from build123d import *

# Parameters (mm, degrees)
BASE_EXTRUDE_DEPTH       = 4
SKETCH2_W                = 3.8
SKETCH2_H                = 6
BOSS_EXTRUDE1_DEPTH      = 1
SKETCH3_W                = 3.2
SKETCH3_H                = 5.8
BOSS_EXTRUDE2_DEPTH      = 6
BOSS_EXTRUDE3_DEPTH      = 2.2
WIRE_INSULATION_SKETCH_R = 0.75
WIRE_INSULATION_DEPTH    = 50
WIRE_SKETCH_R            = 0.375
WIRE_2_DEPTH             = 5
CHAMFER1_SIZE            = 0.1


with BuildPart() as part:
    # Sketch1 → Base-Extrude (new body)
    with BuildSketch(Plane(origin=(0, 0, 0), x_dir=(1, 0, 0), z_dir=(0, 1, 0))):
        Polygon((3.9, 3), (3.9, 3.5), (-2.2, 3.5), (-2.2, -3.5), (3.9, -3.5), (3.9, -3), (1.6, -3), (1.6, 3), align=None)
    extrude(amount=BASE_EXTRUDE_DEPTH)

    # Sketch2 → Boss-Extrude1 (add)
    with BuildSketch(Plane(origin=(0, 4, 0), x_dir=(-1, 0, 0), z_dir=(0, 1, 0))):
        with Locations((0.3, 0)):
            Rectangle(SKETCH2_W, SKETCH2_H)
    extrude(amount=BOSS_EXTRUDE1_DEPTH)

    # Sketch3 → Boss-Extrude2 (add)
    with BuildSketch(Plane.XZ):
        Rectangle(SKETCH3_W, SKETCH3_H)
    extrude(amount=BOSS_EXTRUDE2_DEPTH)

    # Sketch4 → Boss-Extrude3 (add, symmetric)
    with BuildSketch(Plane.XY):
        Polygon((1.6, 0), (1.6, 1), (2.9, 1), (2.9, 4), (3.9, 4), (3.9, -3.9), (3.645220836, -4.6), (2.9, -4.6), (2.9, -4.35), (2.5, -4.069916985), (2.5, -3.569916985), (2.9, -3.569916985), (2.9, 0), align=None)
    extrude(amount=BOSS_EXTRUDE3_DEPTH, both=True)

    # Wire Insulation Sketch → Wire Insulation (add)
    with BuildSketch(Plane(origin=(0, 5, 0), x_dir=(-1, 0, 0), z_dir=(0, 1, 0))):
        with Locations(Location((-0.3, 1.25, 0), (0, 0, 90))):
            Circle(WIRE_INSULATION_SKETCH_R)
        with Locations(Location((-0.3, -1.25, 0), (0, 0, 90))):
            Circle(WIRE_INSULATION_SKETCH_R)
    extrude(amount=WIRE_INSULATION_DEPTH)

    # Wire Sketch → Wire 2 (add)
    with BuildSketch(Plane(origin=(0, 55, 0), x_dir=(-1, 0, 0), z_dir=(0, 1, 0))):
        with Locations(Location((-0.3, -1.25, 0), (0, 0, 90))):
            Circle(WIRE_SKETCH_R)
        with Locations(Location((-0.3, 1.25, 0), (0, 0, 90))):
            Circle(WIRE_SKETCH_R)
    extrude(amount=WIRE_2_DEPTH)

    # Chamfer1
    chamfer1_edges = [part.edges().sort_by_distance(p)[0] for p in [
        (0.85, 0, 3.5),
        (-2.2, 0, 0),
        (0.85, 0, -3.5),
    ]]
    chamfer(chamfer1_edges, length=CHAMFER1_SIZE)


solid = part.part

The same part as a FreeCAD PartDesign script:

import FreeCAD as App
import Part
import Sketcher

V = App.Vector
Q = App.Units.Quantity


def edges_at(feature, points):
    """Names of the edges that pass closest to the given points."""
    edges = feature.Shape.Edges
    near = lambda p: min(range(len(edges)), key=lambda i: edges[i].distToShape(Part.Vertex(*p))[0])
    return sorted({f"Edge{near(p) + 1}" for p in points})

doc = App.newDocument("Part")
body = doc.addObject("PartDesign::Body", "Body")

sketch1 = body.newObject("Sketcher::SketchObject", "Sketch")
sketch1.AttachmentSupport = (doc.getObject("XZ_Plane"), [""])
sketch1.MapMode = "FlatFace"
sketch1.addGeometry(Part.LineSegment(V(3.9, -3, 0), V(3.9, -3.5, 0)), False)
sketch1.addGeometry(Part.LineSegment(V(3.9, -3.5, 0), V(-2.2, -3.5, 0)), False)
sketch1.addGeometry(Part.LineSegment(V(-2.2, -3.5, 0), V(-2.2, 3.5, 0)), False)
sketch1.addGeometry(Part.LineSegment(V(-2.2, 3.5, 0), V(3.9, 3.5, 0)), False)
sketch1.addGeometry(Part.LineSegment(V(3.9, 3.5, 0), V(3.9, 3, 0)), False)
sketch1.addGeometry(Part.LineSegment(V(3.9, 3, 0), V(1.6, 3, 0)), False)
sketch1.addGeometry(Part.LineSegment(V(1.6, 3, 0), V(1.6, -3, 0)), False)
sketch1.addGeometry(Part.LineSegment(V(1.6, -3, 0), V(3.9, -3, 0)), False)
sketch1.addConstraint(Sketcher.Constraint("Coincident", 0, 2, 1, 1))
sketch1.addConstraint(Sketcher.Constraint("Coincident", 1, 2, 2, 1))
sketch1.addConstraint(Sketcher.Constraint("Coincident", 2, 2, 3, 1))
sketch1.addConstraint(Sketcher.Constraint("Coincident", 3, 2, 4, 1))
sketch1.addConstraint(Sketcher.Constraint("Coincident", 4, 2, 5, 1))
sketch1.addConstraint(Sketcher.Constraint("Coincident", 5, 2, 6, 1))
sketch1.addConstraint(Sketcher.Constraint("Coincident", 6, 2, 7, 1))
sketch1.addConstraint(Sketcher.Constraint("Coincident", 7, 2, 0, 1))
sketch1.addConstraint(Sketcher.Constraint("Vertical", 0))
sketch1.addConstraint(Sketcher.Constraint("Horizontal", 1))
sketch1.addConstraint(Sketcher.Constraint("Vertical", 2))
sketch1.addConstraint(Sketcher.Constraint("Horizontal", 3))
sketch1.addConstraint(Sketcher.Constraint("Vertical", 4))
sketch1.addConstraint(Sketcher.Constraint("Horizontal", 5))
sketch1.addConstraint(Sketcher.Constraint("Vertical", 6))
sketch1.addConstraint(Sketcher.Constraint("Horizontal", 7))
sketch1.addConstraint(Sketcher.Constraint("Symmetric", 0, 2, 3, 2, -1))
sketch1.addConstraint(Sketcher.Constraint("Equal", 0, 4))
sketch1.addConstraint(Sketcher.Constraint("DistanceY", 2, 1, 2, 2, Q("7 mm")))
sketch1.addConstraint(Sketcher.Constraint("DistanceY", 6, 2, 6, 1, Q("6 mm")))
sketch1.addConstraint(Sketcher.Constraint("DistanceX", 1, 2, 1, 1, Q("6.1 mm")))
sketch1.addConstraint(Sketcher.Constraint("DistanceX", 5, 2, 5, 1, Q("2.3 mm")))
sketch1.addConstraint(Sketcher.Constraint("DistanceX", -1, 1, 0, 2, Q("3.9 mm")))
pad1 = body.newObject("PartDesign::Pad", "Pad")
pad1.Profile = sketch1
pad1.Length = 4
pad1.Reversed = True

sketch2 = body.newObject("Sketcher::SketchObject", "Sketch001")
sketch2.AttachmentSupport = (doc.getObject("XZ_Plane"), [""])
sketch2.MapMode = "FlatFace"
sketch2.AttachmentOffset = App.Placement(V(0, 0, -4), App.Rotation())
sketch2.addGeometry(Part.LineSegment(V(1.6, 3, 0), V(1.6, -3, 0)), False)
sketch2.addGeometry(Part.LineSegment(V(1.6, -3, 0), V(-2.2, -3, 0)), False)
sketch2.addGeometry(Part.LineSegment(V(-2.2, -3, 0), V(-2.2, 3, 0)), False)
sketch2.addGeometry(Part.LineSegment(V(-2.2, 3, 0), V(1.6, 3, 0)), False)
sketch2.addConstraint(Sketcher.Constraint("Coincident", 0, 2, 1, 1))
sketch2.addConstraint(Sketcher.Constraint("Coincident", 1, 2, 2, 1))
sketch2.addConstraint(Sketcher.Constraint("Coincident", 2, 2, 3, 1))
sketch2.addConstraint(Sketcher.Constraint("Coincident", 3, 2, 0, 1))
sketch2.addConstraint(Sketcher.Constraint("Vertical", 0))
sketch2.addConstraint(Sketcher.Constraint("Horizontal", 1))
sketch2.addConstraint(Sketcher.Constraint("Vertical", 2))
sketch2.addConstraint(Sketcher.Constraint("Horizontal", 3))
sketch2.addConstraint(Sketcher.Constraint("DistanceY", 0, 2, 0, 1, Q("6 mm")))
sketch2.addConstraint(Sketcher.Constraint("DistanceX", 1, 2, 1, 1, Q("3.8 mm")))
sketch2.addConstraint(Sketcher.Constraint("DistanceY", 0, 2, -1, 1, Q("3 mm")))
sketch2.addConstraint(Sketcher.Constraint("DistanceX", -1, 1, 0, 2, Q("1.6 mm")))
pad2 = body.newObject("PartDesign::Pad", "Pad001")
pad2.Profile = sketch2
pad2.Length = 1
pad2.Reversed = True

sketch3 = body.newObject("Sketcher::SketchObject", "Sketch002")
sketch3.AttachmentSupport = (doc.getObject("XZ_Plane"), [""])
sketch3.MapMode = "FlatFace"
sketch3.addGeometry(Part.LineSegment(V(-1.6, 2.9, 0), V(-1.6, -2.9, 0)), False)
sketch3.addGeometry(Part.LineSegment(V(-1.6, -2.9, 0), V(1.6, -2.9, 0)), False)
sketch3.addGeometry(Part.LineSegment(V(1.6, -2.9, 0), V(1.6, 2.9, 0)), False)
sketch3.addGeometry(Part.LineSegment(V(1.6, 2.9, 0), V(-1.6, 2.9, 0)), False)
sketch3.addConstraint(Sketcher.Constraint("Coincident", 0, 2, 1, 1))
sketch3.addConstraint(Sketcher.Constraint("Coincident", 1, 2, 2, 1))
sketch3.addConstraint(Sketcher.Constraint("Coincident", 2, 2, 3, 1))
sketch3.addConstraint(Sketcher.Constraint("Coincident", 3, 2, 0, 1))
sketch3.addConstraint(Sketcher.Constraint("Vertical", 0))
sketch3.addConstraint(Sketcher.Constraint("Horizontal", 1))
sketch3.addConstraint(Sketcher.Constraint("Vertical", 2))
sketch3.addConstraint(Sketcher.Constraint("Horizontal", 3))
sketch3.addConstraint(Sketcher.Constraint("Symmetric", 0, 2, 2, 2, -1, 1))
sketch3.addConstraint(Sketcher.Constraint("DistanceX", 1, 1, 1, 2, Q("3.2 mm")))
sketch3.addConstraint(Sketcher.Constraint("DistanceY", 0, 2, 0, 1, Q("5.8 mm")))
pad3 = body.newObject("PartDesign::Pad", "Pad002")
pad3.Profile = sketch3
pad3.Length = 6

sketch4 = body.newObject("Sketcher::SketchObject", "Sketch003")
sketch4.AttachmentSupport = (doc.getObject("XY_Plane"), [""])
sketch4.MapMode = "FlatFace"
sketch4.addGeometry(Part.LineSegment(V(1.6, 1, 0), V(1.6, 0, 0)), False)
sketch4.addGeometry(Part.LineSegment(V(1.6, 0, 0), V(2.9, 0, 0)), False)
sketch4.addGeometry(Part.LineSegment(V(2.9, 0, 0), V(2.9, -3.569917, 0)), False)
sketch4.addGeometry(Part.LineSegment(V(2.9, -3.569917, 0), V(2.5, -3.569917, 0)), False)
sketch4.addGeometry(Part.LineSegment(V(2.5, -3.569917, 0), V(2.5, -4.069917, 0)), False)
sketch4.addGeometry(Part.LineSegment(V(2.5, -4.069917, 0), V(2.9, -4.35, 0)), False)
sketch4.addGeometry(Part.LineSegment(V(2.9, -4.35, 0), V(2.9, -4.6, 0)), False)
sketch4.addGeometry(Part.LineSegment(V(2.9, -4.6, 0), V(3.645221, -4.6, 0)), False)
sketch4.addGeometry(Part.LineSegment(V(3.645221, -4.6, 0), V(3.9, -3.9, 0)), False)
sketch4.addGeometry(Part.LineSegment(V(3.9, -3.9, 0), V(3.9, 4, 0)), False)
sketch4.addGeometry(Part.LineSegment(V(3.9, 4, 0), V(2.9, 4, 0)), False)
sketch4.addGeometry(Part.LineSegment(V(2.9, 4, 0), V(2.9, 1, 0)), False)
sketch4.addGeometry(Part.LineSegment(V(2.9, 1, 0), V(1.6, 1, 0)), False)
sketch4.addConstraint(Sketcher.Constraint("Coincident", 0, 2, 1, 1))
sketch4.addConstraint(Sketcher.Constraint("Coincident", 1, 2, 2, 1))
sketch4.addConstraint(Sketcher.Constraint("Coincident", 2, 2, 3, 1))
sketch4.addConstraint(Sketcher.Constraint("Coincident", 3, 2, 4, 1))
sketch4.addConstraint(Sketcher.Constraint("Coincident", 4, 2, 5, 1))
sketch4.addConstraint(Sketcher.Constraint("Coincident", 5, 2, 6, 1))
sketch4.addConstraint(Sketcher.Constraint("Coincident", 6, 2, 7, 1))
sketch4.addConstraint(Sketcher.Constraint("Coincident", 7, 2, 8, 1))
sketch4.addConstraint(Sketcher.Constraint("Coincident", 8, 2, 9, 1))
sketch4.addConstraint(Sketcher.Constraint("Coincident", 9, 2, 10, 1))
sketch4.addConstraint(Sketcher.Constraint("Coincident", 10, 2, 11, 1))
sketch4.addConstraint(Sketcher.Constraint("Coincident", 11, 2, 12, 1))
sketch4.addConstraint(Sketcher.Constraint("Coincident", 12, 2, 0, 1))
sketch4.addConstraint(Sketcher.Constraint("Vertical", 0))
sketch4.addConstraint(Sketcher.Constraint("Horizontal", 1))
sketch4.addConstraint(Sketcher.Constraint("Vertical", 2))
sketch4.addConstraint(Sketcher.Constraint("Horizontal", 3))
sketch4.addConstraint(Sketcher.Constraint("Vertical", 4))
sketch4.addConstraint(Sketcher.Constraint("Vertical", 6))
sketch4.addConstraint(Sketcher.Constraint("Horizontal", 7))
sketch4.addConstraint(Sketcher.Constraint("Vertical", 9))
sketch4.addConstraint(Sketcher.Constraint("Horizontal", 10))
sketch4.addConstraint(Sketcher.Constraint("Vertical", 11))
sketch4.addConstraint(Sketcher.Constraint("Horizontal", 12))
sketch4.addConstraint(Sketcher.Constraint("PointOnObject", 0, 2, -1))
sketch4.addConstraint(Sketcher.Constraint("Vertical", 2, 2, 5, 2))
sketch4.addConstraint(Sketcher.Constraint("Vertical", 6, 2, 10, 2))
sketch4.addConstraint(Sketcher.Constraint("Equal", 10, 0))
sketch4.addConstraint(Sketcher.Constraint("DistanceX", 10, 2, 10, 1, Q("1 mm")))
sketch4.addConstraint(Sketcher.Constraint("DistanceY", 11, 2, 11, 1, Q("3 mm")))
sketch4.addConstraint(Sketcher.Constraint("Angle", 5, Q("-35 deg")))
sketch4.addConstraint(Sketcher.Constraint("Angle", 8, Q("70 deg")))
sketch4.addConstraint(Sketcher.Constraint("DistanceX", 1, 1, 1, 2, Q("1.3 mm")))
sketch4.addConstraint(Sketcher.Constraint("DistanceX", 3, 2, 3, 1, Q("0.4 mm")))
sketch4.addConstraint(Sketcher.Constraint("DistanceY", 4, 2, 4, 1, Q("0.5 mm")))
sketch4.addConstraint(Sketcher.Constraint("DistanceY", 9, 1, 9, 2, Q("7.9 mm")))
sketch4.addConstraint(Sketcher.Constraint("DistanceY", 6, 2, 6, 1, Q("0.25 mm")))
sketch4.addConstraint(Sketcher.Constraint("DistanceX", -1, 1, 0, 2, Q("1.6 mm")))
sketch4.addConstraint(Sketcher.Constraint("DistanceY", 6, 2, -1, 1, Q("4.6 mm")))
pad4 = body.newObject("PartDesign::Pad", "Pad003")
pad4.Profile = sketch4
pad4.Length = 4.4
pad4.Midplane = True

sketch5 = body.newObject("Sketcher::SketchObject", "Sketch004")
sketch5.AttachmentSupport = (doc.getObject("XZ_Plane"), [""])
sketch5.MapMode = "FlatFace"
sketch5.AttachmentOffset = App.Placement(V(0, 0, -5), App.Rotation())
sketch5.addGeometry(Part.Circle(V(0.3, 1.25, 0), V(0, 0, 1), 0.75), False)
sketch5.addGeometry(Part.Circle(V(0.3, -1.25, 0), V(0, 0, 1), 0.75), False)
sketch5.addConstraint(Sketcher.Constraint("Equal", 0, 1))
sketch5.addConstraint(Sketcher.Constraint("Symmetric", 0, 3, 1, 3, -1))
sketch5.addConstraint(Sketcher.Constraint("Diameter", 0, Q("1.5 mm")))
sketch5.addConstraint(Sketcher.Constraint("DistanceX", -1, 1, 0, 3, Q("0.3 mm")))
sketch5.addConstraint(Sketcher.Constraint("DistanceY", 1, 3, 0, 3, Q("2.5 mm")))
pad5 = body.newObject("PartDesign::Pad", "Pad004")
pad5.Profile = sketch5
pad5.Length = 50
pad5.Reversed = True

sketch6 = body.newObject("Sketcher::SketchObject", "Sketch005")
sketch6.AttachmentSupport = (doc.getObject("XZ_Plane"), [""])
sketch6.MapMode = "FlatFace"
sketch6.AttachmentOffset = App.Placement(V(0, 0, -55), App.Rotation())
sketch6.addGeometry(Part.Circle(V(0.3, -1.25, 0), V(0, 0, 1), 0.375), False)
sketch6.addGeometry(Part.Circle(V(0.3, 1.25, 0), V(0, 0, 1), 0.375), False)
sketch6.addConstraint(Sketcher.Constraint("Equal", 0, 1))
sketch6.addConstraint(Sketcher.Constraint("Symmetric", 0, 3, 1, 3, -1))
sketch6.addConstraint(Sketcher.Constraint("Diameter", 0, Q("0.75 mm")))
sketch6.addConstraint(Sketcher.Constraint("DistanceX", -1, 1, 0, 3, Q("0.3 mm")))
sketch6.addConstraint(Sketcher.Constraint("DistanceY", 0, 3, 1, 3, Q("2.5 mm")))
pad6 = body.newObject("PartDesign::Pad", "Pad005")
pad6.Profile = sketch6
pad6.Length = 5
pad6.Reversed = True
doc.recompute()

chamfer = body.newObject("PartDesign::Chamfer", "Chamfer")
chamfer.Base = (pad6, edges_at(pad6, [(0.85, 0, 3.5), (-2.2, 0, 0), (0.85, 0, -3.5)]))
chamfer.Size = 0.1

doc.recompute()
